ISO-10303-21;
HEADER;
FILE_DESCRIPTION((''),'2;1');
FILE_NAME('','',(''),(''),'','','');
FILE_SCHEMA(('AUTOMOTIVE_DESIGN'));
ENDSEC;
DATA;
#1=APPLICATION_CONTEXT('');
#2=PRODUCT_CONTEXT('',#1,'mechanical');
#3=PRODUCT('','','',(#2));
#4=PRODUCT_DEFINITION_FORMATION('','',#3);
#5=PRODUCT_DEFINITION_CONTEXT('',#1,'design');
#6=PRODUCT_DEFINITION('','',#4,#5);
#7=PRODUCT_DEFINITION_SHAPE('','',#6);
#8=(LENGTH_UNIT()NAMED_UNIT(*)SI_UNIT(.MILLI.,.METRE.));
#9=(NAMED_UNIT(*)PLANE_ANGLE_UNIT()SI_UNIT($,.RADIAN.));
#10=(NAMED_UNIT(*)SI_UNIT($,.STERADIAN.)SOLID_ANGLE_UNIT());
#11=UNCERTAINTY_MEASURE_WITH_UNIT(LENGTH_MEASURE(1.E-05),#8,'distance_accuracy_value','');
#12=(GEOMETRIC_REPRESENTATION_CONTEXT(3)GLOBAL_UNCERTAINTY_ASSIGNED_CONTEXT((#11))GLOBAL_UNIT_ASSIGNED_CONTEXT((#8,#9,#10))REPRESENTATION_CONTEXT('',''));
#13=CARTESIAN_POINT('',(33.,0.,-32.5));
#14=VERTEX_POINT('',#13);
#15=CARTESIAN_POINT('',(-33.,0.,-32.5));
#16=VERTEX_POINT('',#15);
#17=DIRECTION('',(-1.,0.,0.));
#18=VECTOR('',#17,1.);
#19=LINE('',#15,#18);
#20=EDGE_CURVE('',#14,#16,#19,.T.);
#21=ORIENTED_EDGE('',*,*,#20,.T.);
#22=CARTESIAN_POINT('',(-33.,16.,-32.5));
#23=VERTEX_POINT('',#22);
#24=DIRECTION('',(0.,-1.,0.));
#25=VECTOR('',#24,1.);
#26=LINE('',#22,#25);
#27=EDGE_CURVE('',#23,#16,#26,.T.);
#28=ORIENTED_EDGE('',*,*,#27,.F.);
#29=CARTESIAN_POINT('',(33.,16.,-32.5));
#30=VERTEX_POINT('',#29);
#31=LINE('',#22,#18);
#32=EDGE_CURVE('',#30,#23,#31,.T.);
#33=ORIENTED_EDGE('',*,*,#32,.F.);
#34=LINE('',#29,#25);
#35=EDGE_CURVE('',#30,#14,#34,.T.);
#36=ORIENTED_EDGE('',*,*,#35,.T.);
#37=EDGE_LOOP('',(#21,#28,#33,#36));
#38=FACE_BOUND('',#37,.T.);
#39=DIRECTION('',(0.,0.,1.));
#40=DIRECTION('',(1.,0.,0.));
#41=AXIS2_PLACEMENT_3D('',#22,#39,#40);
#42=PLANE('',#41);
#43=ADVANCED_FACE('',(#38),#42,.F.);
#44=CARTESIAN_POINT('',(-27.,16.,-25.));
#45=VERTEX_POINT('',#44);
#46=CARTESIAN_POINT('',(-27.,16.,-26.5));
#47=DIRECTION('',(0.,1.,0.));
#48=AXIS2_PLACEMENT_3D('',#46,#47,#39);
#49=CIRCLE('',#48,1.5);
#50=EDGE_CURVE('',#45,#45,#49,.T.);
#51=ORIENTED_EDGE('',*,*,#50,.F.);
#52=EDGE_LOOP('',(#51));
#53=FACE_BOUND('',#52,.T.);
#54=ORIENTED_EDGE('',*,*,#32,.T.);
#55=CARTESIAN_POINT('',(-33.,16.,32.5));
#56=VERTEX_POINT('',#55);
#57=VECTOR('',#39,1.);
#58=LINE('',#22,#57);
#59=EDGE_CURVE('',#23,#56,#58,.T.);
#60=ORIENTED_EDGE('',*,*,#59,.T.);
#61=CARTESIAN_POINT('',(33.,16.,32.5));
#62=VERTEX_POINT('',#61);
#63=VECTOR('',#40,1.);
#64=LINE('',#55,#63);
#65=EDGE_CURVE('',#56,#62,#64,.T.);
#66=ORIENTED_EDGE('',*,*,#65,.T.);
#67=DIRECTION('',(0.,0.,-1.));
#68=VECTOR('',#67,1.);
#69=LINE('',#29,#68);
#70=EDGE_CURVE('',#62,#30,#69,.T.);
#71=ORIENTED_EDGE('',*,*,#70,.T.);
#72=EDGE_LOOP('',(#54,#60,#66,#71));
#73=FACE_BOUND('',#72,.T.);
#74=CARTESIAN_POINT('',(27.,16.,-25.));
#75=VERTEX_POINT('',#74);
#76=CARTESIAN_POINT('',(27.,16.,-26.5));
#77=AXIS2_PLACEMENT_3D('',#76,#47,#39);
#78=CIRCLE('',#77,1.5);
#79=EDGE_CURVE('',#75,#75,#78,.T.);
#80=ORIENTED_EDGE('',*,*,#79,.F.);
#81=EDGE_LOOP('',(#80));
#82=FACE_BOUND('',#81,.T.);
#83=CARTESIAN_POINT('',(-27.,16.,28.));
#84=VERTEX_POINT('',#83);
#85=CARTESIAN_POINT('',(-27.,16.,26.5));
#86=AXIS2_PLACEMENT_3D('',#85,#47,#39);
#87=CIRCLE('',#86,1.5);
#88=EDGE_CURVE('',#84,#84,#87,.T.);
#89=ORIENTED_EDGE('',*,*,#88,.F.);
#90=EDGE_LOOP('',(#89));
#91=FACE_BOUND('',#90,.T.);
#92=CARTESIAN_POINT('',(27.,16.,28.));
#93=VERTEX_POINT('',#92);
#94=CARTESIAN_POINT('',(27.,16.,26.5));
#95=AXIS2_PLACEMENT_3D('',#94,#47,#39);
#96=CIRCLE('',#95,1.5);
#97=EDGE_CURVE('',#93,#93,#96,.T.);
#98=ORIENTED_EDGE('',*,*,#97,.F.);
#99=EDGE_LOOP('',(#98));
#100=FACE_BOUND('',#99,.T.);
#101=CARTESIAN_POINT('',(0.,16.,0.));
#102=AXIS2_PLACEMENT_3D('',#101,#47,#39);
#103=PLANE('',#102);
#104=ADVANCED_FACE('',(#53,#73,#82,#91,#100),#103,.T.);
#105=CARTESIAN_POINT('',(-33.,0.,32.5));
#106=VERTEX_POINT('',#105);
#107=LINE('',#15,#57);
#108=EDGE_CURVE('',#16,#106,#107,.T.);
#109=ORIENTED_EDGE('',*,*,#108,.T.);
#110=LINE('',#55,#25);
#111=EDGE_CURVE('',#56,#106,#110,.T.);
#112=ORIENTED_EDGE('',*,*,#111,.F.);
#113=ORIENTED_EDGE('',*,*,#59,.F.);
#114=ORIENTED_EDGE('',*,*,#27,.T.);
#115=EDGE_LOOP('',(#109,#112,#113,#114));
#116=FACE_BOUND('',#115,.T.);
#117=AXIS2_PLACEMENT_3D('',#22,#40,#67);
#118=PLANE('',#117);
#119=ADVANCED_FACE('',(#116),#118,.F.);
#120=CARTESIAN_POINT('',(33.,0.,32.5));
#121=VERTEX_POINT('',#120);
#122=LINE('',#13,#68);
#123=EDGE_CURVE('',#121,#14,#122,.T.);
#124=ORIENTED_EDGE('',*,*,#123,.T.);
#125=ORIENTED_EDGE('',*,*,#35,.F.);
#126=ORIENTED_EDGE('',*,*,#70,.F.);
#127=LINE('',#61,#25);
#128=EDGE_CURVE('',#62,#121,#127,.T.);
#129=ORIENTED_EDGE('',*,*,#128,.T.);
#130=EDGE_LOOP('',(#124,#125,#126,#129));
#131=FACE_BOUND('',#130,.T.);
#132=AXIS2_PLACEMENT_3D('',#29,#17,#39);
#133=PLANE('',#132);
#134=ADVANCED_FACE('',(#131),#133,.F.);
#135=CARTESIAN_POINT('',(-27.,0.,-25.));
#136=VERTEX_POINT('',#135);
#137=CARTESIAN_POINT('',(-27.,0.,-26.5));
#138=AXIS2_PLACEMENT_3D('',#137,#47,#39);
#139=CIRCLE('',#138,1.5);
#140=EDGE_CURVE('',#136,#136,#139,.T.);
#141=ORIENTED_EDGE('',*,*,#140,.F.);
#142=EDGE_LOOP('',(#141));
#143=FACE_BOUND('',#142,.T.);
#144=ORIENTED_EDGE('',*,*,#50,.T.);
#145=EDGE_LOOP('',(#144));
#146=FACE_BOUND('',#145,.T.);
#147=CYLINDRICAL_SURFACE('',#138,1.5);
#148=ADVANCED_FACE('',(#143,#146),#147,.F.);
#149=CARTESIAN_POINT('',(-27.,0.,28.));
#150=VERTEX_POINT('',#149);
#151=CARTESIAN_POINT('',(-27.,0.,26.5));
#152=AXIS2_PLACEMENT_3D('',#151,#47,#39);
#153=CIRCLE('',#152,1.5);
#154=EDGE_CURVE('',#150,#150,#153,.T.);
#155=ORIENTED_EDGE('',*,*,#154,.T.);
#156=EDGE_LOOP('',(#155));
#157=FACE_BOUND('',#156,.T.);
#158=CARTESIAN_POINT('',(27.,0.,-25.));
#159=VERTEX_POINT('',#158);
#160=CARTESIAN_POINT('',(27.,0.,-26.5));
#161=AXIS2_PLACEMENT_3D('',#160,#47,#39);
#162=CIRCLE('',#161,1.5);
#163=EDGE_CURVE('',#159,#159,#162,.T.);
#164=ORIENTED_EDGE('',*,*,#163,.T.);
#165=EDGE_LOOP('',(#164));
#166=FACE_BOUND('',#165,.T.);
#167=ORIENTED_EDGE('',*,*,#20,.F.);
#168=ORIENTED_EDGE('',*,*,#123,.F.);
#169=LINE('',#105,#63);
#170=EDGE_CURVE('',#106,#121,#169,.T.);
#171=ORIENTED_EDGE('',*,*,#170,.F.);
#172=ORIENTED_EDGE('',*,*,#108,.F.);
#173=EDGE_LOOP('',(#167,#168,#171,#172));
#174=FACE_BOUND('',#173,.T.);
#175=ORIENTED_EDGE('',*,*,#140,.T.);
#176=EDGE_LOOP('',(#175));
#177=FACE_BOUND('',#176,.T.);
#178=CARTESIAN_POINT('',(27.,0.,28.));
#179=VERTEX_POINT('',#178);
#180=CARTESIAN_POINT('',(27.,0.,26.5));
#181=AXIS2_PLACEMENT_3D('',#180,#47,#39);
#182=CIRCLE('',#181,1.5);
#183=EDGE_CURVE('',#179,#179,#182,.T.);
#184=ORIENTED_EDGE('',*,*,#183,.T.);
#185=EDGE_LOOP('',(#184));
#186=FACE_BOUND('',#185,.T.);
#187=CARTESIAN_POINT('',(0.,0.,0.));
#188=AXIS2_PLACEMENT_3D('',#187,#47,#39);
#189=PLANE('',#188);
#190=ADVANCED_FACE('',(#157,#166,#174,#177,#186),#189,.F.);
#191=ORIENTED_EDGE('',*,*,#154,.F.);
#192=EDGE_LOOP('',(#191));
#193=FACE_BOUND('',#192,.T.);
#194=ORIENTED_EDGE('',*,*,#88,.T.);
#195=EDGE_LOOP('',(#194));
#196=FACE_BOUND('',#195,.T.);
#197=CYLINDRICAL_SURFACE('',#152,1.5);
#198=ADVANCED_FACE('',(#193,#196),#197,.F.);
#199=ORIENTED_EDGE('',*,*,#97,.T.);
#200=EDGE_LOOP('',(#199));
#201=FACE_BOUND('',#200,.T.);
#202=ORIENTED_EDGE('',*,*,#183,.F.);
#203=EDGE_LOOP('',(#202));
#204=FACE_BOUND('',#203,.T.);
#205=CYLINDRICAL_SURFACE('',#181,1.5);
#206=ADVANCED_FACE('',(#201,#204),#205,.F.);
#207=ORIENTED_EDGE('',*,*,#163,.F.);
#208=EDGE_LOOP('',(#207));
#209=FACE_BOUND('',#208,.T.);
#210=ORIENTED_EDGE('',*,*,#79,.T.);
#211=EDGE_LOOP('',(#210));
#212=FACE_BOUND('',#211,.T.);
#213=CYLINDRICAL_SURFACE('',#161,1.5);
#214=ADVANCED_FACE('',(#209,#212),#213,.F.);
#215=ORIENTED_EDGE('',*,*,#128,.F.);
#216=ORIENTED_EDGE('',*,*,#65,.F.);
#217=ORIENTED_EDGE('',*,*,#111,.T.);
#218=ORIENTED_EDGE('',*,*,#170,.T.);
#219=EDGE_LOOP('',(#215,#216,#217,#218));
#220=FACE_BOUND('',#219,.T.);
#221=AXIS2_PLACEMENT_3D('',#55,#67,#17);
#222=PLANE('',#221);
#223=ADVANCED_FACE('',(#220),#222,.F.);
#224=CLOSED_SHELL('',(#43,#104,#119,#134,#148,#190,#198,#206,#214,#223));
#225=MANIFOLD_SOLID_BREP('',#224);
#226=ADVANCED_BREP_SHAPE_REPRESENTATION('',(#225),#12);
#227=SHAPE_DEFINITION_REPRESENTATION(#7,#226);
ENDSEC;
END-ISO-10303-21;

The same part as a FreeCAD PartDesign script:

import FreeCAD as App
import Part
import Sketcher
from FreeCAD import Vector


def add_polygon(sketch, points):
    """Adds a closed chain of lines whose ends are joined by coincident constraints."""
    first, n = sketch.GeometryCount, len(points)
    for a, b in zip(points, points[1:] + points[:1]):
        sketch.addGeometry(Part.LineSegment(App.Vector(*a, 0), App.Vector(*b, 0)), False)
    for i in range(n):
        sketch.addConstraint(Sketcher.Constraint("Coincident", first + i, 2, first + (i + 1) % n, 1))

doc = App.newDocument("Part")
params = doc.addObject("Spreadsheet::Sheet", "Params")
for row, (alias, value) in enumerate([
    ("sketch1_width", "66 mm"),
    ("sketch1_height", "65 mm"),
    ("pad1_length", "16 mm"),
    ("sketch2_diameter", "3 mm"),
    ("pocket1_length", "16 mm"),
], start=1):
    params.set(f"A{row}", alias)
    params.set(f"B{row}", "=" + value)
    params.setAlias(f"B{row}", alias)

body = doc.addObject("PartDesign::Body", "Body")

# Sketch on XZ plane
sketch1 = body.newObject("Sketcher::SketchObject", "Sketch")
sketch1.AttachmentSupport = (doc.getObject("XZ_Plane"), [""])
sketch1.MapMode = "FlatFace"
add_polygon(sketch1, [(-33, -32), (-33, 32), (33, 32), (33, -32)])  # lines 0-3
sketch1.addConstraint([
    Sketcher.Constraint("Vertical", 0),
    Sketcher.Constraint("Horizontal", 1),
    Sketcher.Constraint("Vertical", 2),
    Sketcher.Constraint("Horizontal", 3),
    Sketcher.Constraint("Symmetric", 0, 2, 2, 2, -1, 1),
    Sketcher.Constraint("DistanceX", 1, 1, 1, 2, 66.0),
    Sketcher.Constraint("DistanceY", 0, 1, 0, 2, 65.0),
])
sketch1.setExpression("Constraints[9]", "Params.sketch1_width")
sketch1.setExpression("Constraints[10]", "Params.sketch1_height")
pad1 = body.newObject("PartDesign::Pad", "Pad")
pad1.Profile = sketch1
pad1.setExpression("Length", "Params.pad1_length")
pad1.Reversed = True

# Sketch on XZ plane
sketch2 = body.newObject("Sketcher::SketchObject", "Sketch001")
sketch2.AttachmentSupport = (doc.getObject("XZ_Plane"), [""])
sketch2.MapMode = "FlatFace"
sketch2.AttachmentOffset = App.Placement(Vector(0, 0, -16), App.Rotation())
sketch2.addGeometry([
    Part.Circle(Vector(-27, -26.5, 0), Vector(0, 0, 1), 1.5),
    Part.Circle(Vector(27, -26.5, 0), Vector(0, 0, 1), 1.5),
    Part.Circle(Vector(27, 26.5, 0), Vector(0, 0, 1), 1.5),
    Part.Circle(Vector(-27, 26.5, 0), Vector(0, 0, 1), 1.5),
], False)
sketch2.addConstraint([
    Sketcher.Constraint("Equal", 0, 1),
    Sketcher.Constraint("Equal", 1, 2),
    Sketcher.Constraint("Equal", 2, 3),
    Sketcher.Constraint("Symmetric", 0, 3, 2, 3, -1, 1),
    Sketcher.Constraint("Symmetric", 1, 3, 3, 3, -1, 1),
    Sketcher.Constraint("Symmetric", 0, 3, 1, 3, -2),
    Sketcher.Constraint("Diameter", 0, 3.0),
    Sketcher.Constraint("DistanceX", 0, 3, -1, 1, 27.0),
    Sketcher.Constraint("DistanceY", 1, 3, 2, 3, 53.0),
])
sketch2.setExpression("Constraints[6]", "Params.sketch2_diameter")
pocket1 = body.newObject("PartDesign::Pocket", "Pocket")
pocket1.Profile = sketch2
pocket1.setExpression("Length", "Params.pocket1_length")
pocket1.Reversed = True

doc.recompute()
